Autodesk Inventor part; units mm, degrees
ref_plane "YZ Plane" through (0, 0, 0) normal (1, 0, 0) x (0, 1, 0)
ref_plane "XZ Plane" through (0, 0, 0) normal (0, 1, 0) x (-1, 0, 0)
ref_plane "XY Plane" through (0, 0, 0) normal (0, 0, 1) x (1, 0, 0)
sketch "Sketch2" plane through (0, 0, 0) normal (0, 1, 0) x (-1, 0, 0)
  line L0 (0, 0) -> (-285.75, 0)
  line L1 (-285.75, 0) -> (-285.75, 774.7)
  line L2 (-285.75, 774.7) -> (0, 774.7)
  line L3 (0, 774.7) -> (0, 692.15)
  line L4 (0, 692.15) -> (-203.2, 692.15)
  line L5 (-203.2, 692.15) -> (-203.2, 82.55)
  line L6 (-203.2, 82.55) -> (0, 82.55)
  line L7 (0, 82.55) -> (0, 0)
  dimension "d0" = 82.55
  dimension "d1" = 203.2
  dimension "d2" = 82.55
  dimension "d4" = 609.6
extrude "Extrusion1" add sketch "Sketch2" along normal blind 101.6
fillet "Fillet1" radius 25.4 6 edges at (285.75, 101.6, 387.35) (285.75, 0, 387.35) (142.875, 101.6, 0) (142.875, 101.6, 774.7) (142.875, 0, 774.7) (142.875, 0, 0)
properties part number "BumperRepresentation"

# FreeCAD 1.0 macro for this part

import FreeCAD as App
import Part
import Sketcher

V = App.Vector
Q = App.Units.Quantity


def edges_at(feature, points):
    """Names of the edges that pass closest to the given points."""
    edges = feature.Shape.Edges
    near = lambda p: min(range(len(edges)), key=lambda i: edges[i].distToShape(Part.Vertex(*p))[0])
    return sorted({f"Edge{near(p) + 1}" for p in points})


def add_polygon(sketch, points):
    """Adds a closed chain of lines whose ends are joined by coincident constraints."""
    first, n = sketch.GeometryCount, len(points)
    for a, b in zip(points, points[1:] + points[:1]):
        sketch.addGeometry(Part.LineSegment(App.Vector(*a, 0), App.Vector(*b, 0)), False)
    for i in range(n):
        sketch.addConstraint(Sketcher.Constraint("Coincident", first + i, 2, first + (i + 1) % n, 1))

doc = App.newDocument("Part")
body = doc.addObject("PartDesign::Body", "Body")

# Sketch on XZ plane
sketch1 = body.newObject("Sketcher::SketchObject", "Sketch")
sketch1.AttachmentSupport = (doc.getObject("XZ_Plane"), [""])
sketch1.MapMode = "FlatFace"
add_polygon(sketch1, [(286, 0), (0, 0), (0, 83), (203, 83), (203, 692), (0, 692), (0, 775), (286, 775)])  # lines 0-7
sketch1.addConstraint([
    Sketcher.Constraint("Horizontal", 0),
    Sketcher.Constraint("Vertical", 1),
    Sketcher.Constraint("Horizontal", 2),
    Sketcher.Constraint("Vertical", 3),
    Sketcher.Constraint("Horizontal", 4),
    Sketcher.Constraint("Vertical", 5),
    Sketcher.Constraint("Horizontal", 6),
    Sketcher.Constraint("Vertical", 7),
    Sketcher.Constraint("Coincident", 0, 2, -1, 1),
    Sketcher.Constraint("PointOnObject", 4, 2, -2),
    Sketcher.Constraint("Equal", 1, 5),
    Sketcher.Constraint("DistanceX", 2, 1, 2, 2, Q("8 in")),
    Sketcher.Constraint("DistanceY", 3, 1, 3, 2, Q("24 in")),
    Sketcher.Constraint("DistanceY", 1, 1, 1, 2, Q("3.25 in")),
    Sketcher.Constraint("DistanceX", 3, 2, 6, 2, Q("3.25 in")),
])
pad1 = body.newObject("PartDesign::Pad", "Pad")
pad1.Profile = sketch1
pad1.Length = Q("4 in")
pad1.Reversed = True
doc.recompute()

fillet = body.newObject("PartDesign::Fillet", "Fillet")
fillet.Base = (pad1, edges_at(pad1, [
    (285.75, 101.6, 387.35),
    (285.75, 0, 387.35),
    (142.875, 101.6, 0),
    (142.875, 101.6, 774.7),
    (142.875, 0, 774.7),
    (142.875, 0, 0),
]))
fillet.Radius = Q("1 in")

doc.recompute()
